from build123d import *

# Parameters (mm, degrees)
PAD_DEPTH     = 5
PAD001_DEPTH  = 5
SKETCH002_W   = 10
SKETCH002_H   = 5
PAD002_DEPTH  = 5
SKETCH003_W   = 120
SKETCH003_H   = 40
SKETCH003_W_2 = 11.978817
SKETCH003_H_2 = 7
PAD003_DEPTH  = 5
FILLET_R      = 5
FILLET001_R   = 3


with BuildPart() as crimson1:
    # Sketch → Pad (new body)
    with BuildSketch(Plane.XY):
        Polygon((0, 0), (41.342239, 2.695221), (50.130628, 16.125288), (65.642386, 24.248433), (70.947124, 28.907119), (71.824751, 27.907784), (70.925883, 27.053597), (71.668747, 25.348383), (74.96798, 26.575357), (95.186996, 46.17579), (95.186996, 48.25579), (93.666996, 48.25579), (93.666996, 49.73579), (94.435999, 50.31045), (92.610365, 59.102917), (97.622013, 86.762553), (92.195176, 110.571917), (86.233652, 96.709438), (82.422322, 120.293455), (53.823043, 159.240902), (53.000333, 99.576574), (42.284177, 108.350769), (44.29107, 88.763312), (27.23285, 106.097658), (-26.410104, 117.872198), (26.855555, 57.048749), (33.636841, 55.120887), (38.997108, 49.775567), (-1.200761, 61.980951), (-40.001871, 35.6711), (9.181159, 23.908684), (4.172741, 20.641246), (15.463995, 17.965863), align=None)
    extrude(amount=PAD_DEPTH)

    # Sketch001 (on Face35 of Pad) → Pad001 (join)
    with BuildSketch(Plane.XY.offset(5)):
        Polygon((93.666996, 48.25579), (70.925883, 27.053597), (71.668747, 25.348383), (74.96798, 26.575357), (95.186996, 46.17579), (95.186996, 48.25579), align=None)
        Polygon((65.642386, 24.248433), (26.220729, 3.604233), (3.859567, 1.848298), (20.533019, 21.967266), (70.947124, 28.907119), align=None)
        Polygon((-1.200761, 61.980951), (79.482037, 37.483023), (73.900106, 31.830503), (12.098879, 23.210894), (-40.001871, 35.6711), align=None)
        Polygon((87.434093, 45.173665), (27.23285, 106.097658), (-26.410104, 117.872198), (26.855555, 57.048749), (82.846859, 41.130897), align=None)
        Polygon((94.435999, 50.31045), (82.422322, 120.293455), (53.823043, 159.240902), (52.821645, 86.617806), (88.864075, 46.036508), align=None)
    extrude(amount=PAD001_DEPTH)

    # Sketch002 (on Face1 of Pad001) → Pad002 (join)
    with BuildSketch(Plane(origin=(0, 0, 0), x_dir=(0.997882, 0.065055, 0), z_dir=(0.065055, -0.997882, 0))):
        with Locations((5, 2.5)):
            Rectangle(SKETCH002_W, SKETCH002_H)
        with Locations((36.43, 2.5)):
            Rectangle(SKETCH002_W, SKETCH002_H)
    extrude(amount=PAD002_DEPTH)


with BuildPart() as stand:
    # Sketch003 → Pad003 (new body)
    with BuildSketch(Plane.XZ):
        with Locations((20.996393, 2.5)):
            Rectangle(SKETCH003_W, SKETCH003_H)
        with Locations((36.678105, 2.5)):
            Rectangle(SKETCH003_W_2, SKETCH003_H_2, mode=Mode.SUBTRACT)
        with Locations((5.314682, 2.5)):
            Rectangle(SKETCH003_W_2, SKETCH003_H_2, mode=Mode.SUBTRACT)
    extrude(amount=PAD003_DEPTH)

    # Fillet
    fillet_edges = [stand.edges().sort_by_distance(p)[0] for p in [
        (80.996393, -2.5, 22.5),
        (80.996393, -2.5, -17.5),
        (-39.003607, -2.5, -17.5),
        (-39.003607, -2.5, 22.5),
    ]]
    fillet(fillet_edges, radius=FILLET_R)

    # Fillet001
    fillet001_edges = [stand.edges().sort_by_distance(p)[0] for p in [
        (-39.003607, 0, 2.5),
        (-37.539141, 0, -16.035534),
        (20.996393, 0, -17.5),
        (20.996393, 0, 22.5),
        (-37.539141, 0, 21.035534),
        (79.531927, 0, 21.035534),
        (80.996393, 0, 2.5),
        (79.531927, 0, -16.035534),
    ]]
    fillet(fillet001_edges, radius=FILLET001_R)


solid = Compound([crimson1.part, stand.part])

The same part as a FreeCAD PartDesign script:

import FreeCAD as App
import Part
import Sketcher
from FreeCAD import Vector
Q = App.Units.Quantity


def edges_at(feature, points):
    """Names of the edges that pass closest to the given points."""
    edges = feature.Shape.Edges
    near = lambda p: min(range(len(edges)), key=lambda i: edges[i].distToShape(Part.Vertex(*p))[0])
    return sorted({f"Edge{near(p) + 1}" for p in points})


def add_polygon(sketch, points):
    """Adds a closed chain of lines whose ends are joined by coincident constraints."""
    first, n = sketch.GeometryCount, len(points)
    for a, b in zip(points, points[1:] + points[:1]):
        sketch.addGeometry(Part.LineSegment(App.Vector(*a, 0), App.Vector(*b, 0)), False)
    for i in range(n):
        sketch.addConstraint(Sketcher.Constraint("Coincident", first + i, 2, first + (i + 1) % n, 1))

doc = App.newDocument("Part")
params = doc.addObject("Spreadsheet::Sheet", "Params")
for row, (alias, value) in enumerate([
    ("sketch1_width", "1.52 mm"),
    ("sketch1_height", "2.08 mm"),
    ("sketch1_height2", "1.48 mm"),
    ("sketch1_length", "41.430001 mm"),
    ("sketch1_length2", "16.049999 mm"),
    ("pad1_length", "5 mm"),
    ("sketch2_length", "44.5 mm"),
    ("sketch2_width", "1.52 mm"),
    ("sketch2_height", "2.08 mm"),
    ("sketch2_length2", "1.86 mm"),
    ("sketch2_length3", "3.520001 mm"),
    ("pad2_length", "5 mm"),
    ("sketch3_width", "10 mm"),
    ("sketch3_height", "5 mm"),
    ("pad3_length", "5 mm"),
    ("sketch4_width", "120 mm"),
    ("sketch4_height", "40 mm"),
    ("sketch4_height2", "7 mm"),
    ("pad4_length", "5 mm"),
    ("fillet_radius", "5 mm"),
    ("fillet2_radius", "3 mm"),
], start=1):
    params.set(f"A{row}", alias)
    params.set(f"B{row}", "=" + value)
    params.setAlias(f"B{row}", alias)

body = doc.addObject("PartDesign::Body", "Body")

# Sketch on XY plane
sketch1 = doc.addObject("Sketcher::SketchObject", "Sketch")
body.addObject(sketch1)
sketch1.AttachmentSupport = (doc.XY_Plane, [""])
sketch1.MapMode = "FlatFace"
add_polygon(sketch1, [(0, 0), (41.3, 2.7), (50.1, 16.1), (65.6, 24.2), (70.9, 28.9), (71.8, 27.9), (70.9, 27.1), (71.7, 25.3), (75, 26.6), (95.2, 46.2), (95.2, 48.3), (93.7, 48.3), (93.7, 49.7), (94.4, 50.3), (92.6, 59.1), (97.6, 86.8), (92.2, 110.6), (86.2, 96.7), (82.4, 120.3), (53.8, 159.2), (53, 99.6), (42.3, 108.4), (44.3, 88.8), (27.2, 106.1), (-26.4, 117.9), (26.9, 57), (33.6, 55.1), (39, 49.8), (-1.2, 62), (-40, 35.7), (9.2, 23.9), (4.2, 20.6), (15.5, 18)])  # lines 0-32
sketch1.addConstraint(Sketcher.Constraint("Vertical", 9))
sketch1.addConstraint(Sketcher.Constraint("Horizontal", 10))
sketch1.addConstraint(Sketcher.Constraint("Vertical", 11))
sketch1.addConstraint(Sketcher.Constraint("Coincident", 32, 2, -1, 1))
sketch1.addConstraint(Sketcher.Constraint("Perpendicular", 3, 4))
sketch1.addConstraint(Sketcher.Constraint("Angle", 1, Q("56.800002 deg")))
sketch1.addConstraint(Sketcher.Constraint("Angle", 7, Q("20.400004 deg")))
sketch1.addConstraint(Sketcher.Constraint("DistanceX", 10, 2, 10, 1, 1.52))
sketch1.addConstraint(Sketcher.Constraint("DistanceY", 9, 1, 9, 2, 2.08))
sketch1.addConstraint(Sketcher.Constraint("DistanceY", 11, 1, 11, 2, 1.48))
sketch1.addConstraint(Sketcher.Constraint("Angle", 0, Q("3.73 deg")))
sketch1.addConstraint(Sketcher.Constraint("Angle", 2, Q("27.64 deg")))
sketch1.addConstraint(Sketcher.Constraint("Angle", 3, Q("41.29 deg")))
sketch1.addConstraint(Sketcher.Constraint("Angle", 5, Q("-136.46001 deg")))
sketch1.addConstraint(Sketcher.Constraint("Angle", 6, Q("-66.460003 deg")))
sketch1.addConstraint(Sketcher.Constraint("Angle", 8, Q("44.109999 deg")))
sketch1.addConstraint(Sketcher.Constraint("Angle", 12, Q("36.77 deg")))
sketch1.addConstraint(Sketcher.Constraint("Angle", 13, Q("101.73 deg")))
sketch1.addConstraint(Sketcher.Constraint("Angle", 14, Q("79.730001 deg")))
sketch1.addConstraint(Sketcher.Constraint("Angle", 15, Q("102.839999 deg")))
sketch1.addConstraint(Sketcher.Constraint("Angle", 16, Q("-113.27 deg")))
sketch1.addConstraint(Sketcher.Constraint("Angle", 17, Q("99.180001 deg")))
sketch1.addConstraint(Sketcher.Constraint("Angle", 18, Q("126.289999 deg")))
sketch1.addConstraint(Sketcher.Constraint("Angle", 19, Q("-90.79 deg")))
sketch1.addConstraint(Sketcher.Constraint("Angle", 20, Q("140.690003 deg")))
sketch1.addConstraint(Sketcher.Constraint("Angle", 21, Q("-84.149999 deg")))
sketch1.addConstraint(Sketcher.Constraint("Angle", 22, Q("134.540002 deg")))
sketch1.addConstraint(Sketcher.Constraint("Angle", 23, Q("167.62 deg")))
sketch1.addConstraint(Sketcher.Constraint("Angle", 24, Q("-48.79 deg")))
sketch1.addConstraint(Sketcher.Constraint("Angle", 25, Q("-15.870001 deg")))
sketch1.addConstraint(Sketcher.Constraint("Angle", 26, Q("-44.920004 deg")))
sketch1.addConstraint(Sketcher.Constraint("Angle", 27, Q("163.109999 deg")))
sketch1.addConstraint(Sketcher.Constraint("Angle", 28, Q("-145.86 deg")))
sketch1.addConstraint(Sketcher.Constraint("Angle", 29, Q("-13.45 deg")))
sketch1.addConstraint(Sketcher.Constraint("Angle", 30, Q("-146.880003 deg")))
sketch1.addConstraint(Sketcher.Constraint("Angle", 31, Q("-13.330002 deg")))
sketch1.addConstraint(Sketcher.Constraint("Angle", 32, Q("-130.720001 deg")))
sketch1.addConstraint(Sketcher.Constraint("Distance", 0, 41.430001))
sketch1.addConstraint(Sketcher.Constraint("Distance", 1, 16.049999))
sketch1.addConstraint(Sketcher.Constraint("Distance", 2, 17.510001))
sketch1.addConstraint(Sketcher.Constraint("Distance", 3, 7.06))
sketch1.addConstraint(Sketcher.Constraint("Distance", 4, 1.33))
sketch1.addConstraint(Sketcher.Constraint("Distance", 5, 1.24))
sketch1.addConstraint(Sketcher.Constraint("Distance", 6, 1.86))
sketch1.addConstraint(Sketcher.Constraint("Distance", 7, 3.520001))
sketch1.addConstraint(Sketcher.Constraint("Distance", 8, 28.16))
sketch1.addConstraint(Sketcher.Constraint("Distance", 12, 0.96))
sketch1.addConstraint(Sketcher.Constraint("Distance", 13, 8.980001))
sketch1.addConstraint(Sketcher.Constraint("Distance", 14, 28.11))
sketch1.addConstraint(Sketcher.Constraint("Distance", 15, 24.419999))
sketch1.addConstraint(Sketcher.Constraint("Distance", 16, 15.09))
sketch1.addConstraint(Sketcher.Constraint("Distance", 17, 23.89))
sketch1.addConstraint(Sketcher.Constraint("Distance", 18, 48.32))
sketch1.addConstraint(Sketcher.Constraint("Distance", 19, 59.67))
sketch1.addConstraint(Sketcher.Constraint("Distance", 20, 13.85))
sketch1.addConstraint(Sketcher.Constraint("Distance", 21, 19.69))
sketch1.addConstraint(Sketcher.Constraint("Distance", 22, 24.32))
sketch1.addConstraint(Sketcher.Constraint("Distance", 23, 54.919999))
sketch1.addConstraint(Sketcher.Constraint("Distance", 24, 80.849999))
sketch1.addConstraint(Sketcher.Constraint("Distance", 25, 7.049999))
sketch1.addConstraint(Sketcher.Constraint("Distance", 26, 7.570001))
sketch1.addConstraint(Sketcher.Constraint("Distance", 27, 42.01))
sketch1.addConstraint(Sketcher.Constraint("Distance", 28, 46.88))
sketch1.addConstraint(Sketcher.Constraint("Distance", 29, 50.57))
sketch1.addConstraint(Sketcher.Constraint("Distance", 30, 5.98))
sketch1.setExpression("Constraints[40]", "Params.sketch1_width")
sketch1.setExpression("Constraints[41]", "Params.sketch1_height")
sketch1.setExpression("Constraints[42]", "Params.sketch1_height2")
sketch1.setExpression("Constraints[70]", "Params.sketch1_length")
sketch1.setExpression("Constraints[71]", "Params.sketch1_length2")
pad1 = doc.addObject("PartDesign::Pad", "Pad")
body.addObject(pad1)
pad1.Profile = sketch1
pad1.setExpression("Length", "Params.pad1_length")

# Sketch on XY plane
sketch2 = doc.addObject("Sketcher::SketchObject", "Sketch001")
body.addObject(sketch2)
sketch2.AttachmentSupport = (doc.XY_Plane, [""])
sketch2.MapMode = "FlatFace"
sketch2.AttachmentOffset = App.Placement(Vector(0, 0, 5), App.Rotation())
add_polygon(sketch2, [(93.7, 48.3), (70.9, 27.1), (71.7, 25.3), (75, 26.6), (95.2, 46.2), (95.2, 48.3)])  # lines 0-5
add_polygon(sketch2, [(26.2, 3.6), (65.6, 24.2), (70.9, 28.9), (20.5, 22), (3.9, 1.8)])  # lines 6-10
add_polygon(sketch2, [(79.5, 37.5), (-1.2, 62), (-40, 35.7), (12.1, 23.2), (73.9, 31.8)])  # lines 11-15
add_polygon(sketch2, [(87.4, 45.2), (27.2, 106.1), (-26.4, 117.9), (26.9, 57), (82.8, 41.1)])  # lines 16-20
add_polygon(sketch2, [(94.4, 50.3), (82.4, 120.3), (53.8, 159.2), (52.8, 86.6), (88.9, 46)])  # lines 21-25
sketch2.addConstraint(Sketcher.Constraint("Vertical", 4))
sketch2.addConstraint(Sketcher.Constraint("Horizontal", 5))
sketch2.addConstraint(Sketcher.Constraint("Angle", 2, Q("20.400004 deg")))
sketch2.addConstraint(Sketcher.Constraint("Distance", 6, 44.5))
sketch2.addConstraint(Sketcher.Constraint("DistanceX", 5, 2, 5, 1, 1.52))
sketch2.addConstraint(Sketcher.Constraint("DistanceY", 4, 1, 4, 2, 2.08))
sketch2.addConstraint(Sketcher.Constraint("Angle", 1, Q("-66.460003 deg")))
sketch2.addConstraint(Sketcher.Constraint("Angle", 3, Q("44.109999 deg")))
sketch2.addConstraint(Sketcher.Constraint("Angle", 6, Q("27.64 deg")))
sketch2.addConstraint(Sketcher.Constraint("Angle", 7, Q("41.29 deg")))
sketch2.addConstraint(Sketcher.Constraint("Angle", 9, Q("-129.65 deg")))
sketch2.addConstraint(Sketcher.Constraint("Angle", 10, Q("4.490001 deg")))
sketch2.addConstraint(Sketcher.Constraint("Angle", 11, Q("163.11 deg")))
sketch2.addConstraint(Sketcher.Constraint("Angle", 12, Q("-145.86 deg")))
sketch2.addConstraint(Sketcher.Constraint("Angle", 13, Q("-13.45 deg")))
sketch2.addConstraint(Sketcher.Constraint("Angle", 14, Q("7.94 deg")))
sketch2.addConstraint(Sketcher.Constraint("Angle", 15, Q("45.36 deg")))
sketch2.addConstraint(Sketcher.Constraint("Angle", 17, Q("167.62 deg")))
sketch2.addConstraint(Sketcher.Constraint("Angle", 18, Q("-48.79 deg")))
sketch2.addConstraint(Sketcher.Constraint("Angle", 19, Q("-15.870001 deg")))
sketch2.addConstraint(Sketcher.Constraint("Angle", 20, Q("41.389999 deg")))
sketch2.addConstraint(Sketcher.Constraint("Angle", 22, Q("126.289999 deg")))
sketch2.addConstraint(Sketcher.Constraint("Angle", 23, Q("-90.79 deg")))
sketch2.addConstraint(Sketcher.Constraint("Angle", 24, Q("-48.39 deg")))
sketch2.addConstraint(Sketcher.Constraint("Angle", 25, Q("37.489995 deg")))
sketch2.addConstraint(Sketcher.Constraint("Distance", 1, 1.86))
sketch2.addConstraint(Sketcher.Constraint("Distance", 2, 3.520001))
sketch2.addConstraint(Sketcher.Constraint("Distance", 3, 28.16))
sketch2.addConstraint(Sketcher.Constraint("Distance", 7, 7.06))
sketch2.addConstraint(Sketcher.Constraint("Distance", 9, 26.13))
sketch2.addConstraint(Sketcher.Constraint("Distance", 10, 22.429999))
sketch2.addConstraint(Sketcher.Constraint("Distance", 11, 84.32))
sketch2.addConstraint(Sketcher.Constraint("Distance", 12, 46.88))
sketch2.addConstraint(Sketcher.Constraint("Distance", 13, 53.57))
sketch2.addConstraint(Sketcher.Constraint("Distance", 16, 85.65))
sketch2.addConstraint(Sketcher.Constraint("Distance", 17, 54.919999))
sketch2.addConstraint(Sketcher.Constraint("Distance", 18, 80.849999))
sketch2.addConstraint(Sketcher.Constraint("Distance", 19, 58.21))
sketch2.addConstraint(Sketcher.Constraint("Distance", 22, 48.32))
sketch2.addConstraint(Sketcher.Constraint("Distance", 23, 72.63))
sketch2.addConstraint(Sketcher.Constraint("DistanceX", -1, 1, 25, 2, 94.435999))
sketch2.addConstraint(Sketcher.Constraint("DistanceY", -1, 1, 12, 2, 35.6711))
sketch2.addConstraint(Sketcher.Constraint("DistanceY", -1, 1, 22, 2, 159.240902))
sketch2.addConstraint(Sketcher.Constraint("DistanceY", 9, 2, 0, 2, 25.205299))
sketch2.addConstraint(Sketcher.Constraint("DistanceX", 12, 2, 10, 2, 66.2226))
sketch2.addConstraint(Sketcher.Constraint("DistanceY", 12, 2, 17, 2, 82.201098))
sketch2.addConstraint(Sketcher.Constraint("DistanceX", -1, 1, 2, 2, 74.96798))
sketch2.addConstraint(Sketcher.Constraint("DistanceY", -1, 1, 3, 2, 46.17579))
sketch2.addConstraint(Sketcher.Constraint("DistanceX", -1, 1, 8, 2, 20.533019))
sketch2.addConstraint(Sketcher.Constraint("DistanceX", -1, 1, 16, 2, 27.23285))
sketch2.addConstraint(Sketcher.Constraint("DistanceX", -1, 1, 21, 2, 82.422322))
sketch2.addConstraint(Sketcher.Constraint("DistanceY", -1, 1, 25, 2, 50.31045))
sketch2.setExpression("Constraints[29]", "Params.sketch2_length")
sketch2.setExpression("Constraints[30]", "Params.sketch2_width")
sketch2.setExpression("Constraints[31]", "Params.sketch2_height")
sketch2.setExpression("Constraints[51]", "Params.sketch2_length2")
sketch2.setExpression("Constraints[52]", "Params.sketch2_length3")
pad2 = doc.addObject("PartDesign::Pad", "Pad001")
body.addObject(pad2)
pad2.Profile = sketch2
pad2.setExpression("Length", "Params.pad2_length")

# Sketch on an angled plane
sketch3 = doc.addObject("Sketcher::SketchObject", "Sketch002")
body.addObject(sketch3)
sketch3.Placement = App.Placement(Vector(0, 0, 0), App.Rotation(Vector(0.997881681, 0.065054979, 0), Vector(0, 0, 1), Vector(0.065054979, -0.997881681, 0), "ZXY"))
add_polygon(sketch3, [(0, 5), (0, 0), (10, 0), (10, 5)])  # lines 0-3
add_polygon(sketch3, [(31.4, 5), (31.4, 0), (41.4, 0), (41.4, 5)])  # lines 4-7
sketch3.addConstraint(Sketcher.Constraint("Vertical", 0))
sketch3.addConstraint(Sketcher.Constraint("Horizontal", 1))
sketch3.addConstraint(Sketcher.Constraint("Vertical", 2))
sketch3.addConstraint(Sketcher.Constraint("Horizontal", 3))
sketch3.addConstraint(Sketcher.Constraint("Vertical", 4))
sketch3.addConstraint(Sketcher.Constraint("Horizontal", 5))
sketch3.addConstraint(Sketcher.Constraint("Vertical", 6))
sketch3.addConstraint(Sketcher.Constraint("Horizontal", 7))
sketch3.addConstraint(Sketcher.Constraint("Coincident", 0, 2, -1, 1))
sketch3.addConstraint(Sketcher.Constraint("PointOnObject", 4, 2, -1))
sketch3.addConstraint(Sketcher.Constraint("Horizontal", 3, 2, 6, 2))
sketch3.addConstraint(Sketcher.Constraint("Equal", 3, 5))
sketch3.addConstraint(Sketcher.Constraint("DistanceX", 1, 1, 1, 2, 10.0))
sketch3.addConstraint(Sketcher.Constraint("DistanceY", 0, 2, 0, 1, 5.0))
sketch3.addConstraint(Sketcher.Constraint("DistanceX", -1, 1, 4, 2, 31.43))
sketch3.setExpression("Constraints[20]", "Params.sketch3_width")
sketch3.setExpression("Constraints[21]", "Params.sketch3_height")
pad3 = doc.addObject("PartDesign::Pad", "Pad002")
body.addObject(pad3)
pad3.Profile = sketch3
pad3.setExpression("Length", "Params.pad3_length")
body2 = doc.addObject("PartDesign::Body", "Body001")

# Sketch on XZ plane
sketch4 = doc.addObject("Sketcher::SketchObject", "Sketch003")
body2.addObject(sketch4)
sketch4.AttachmentSupport = (doc.getObject("XZ_Plane001"), [""])
sketch4.MapMode = "FlatFace"
add_polygon(sketch4, [(-39, 22), (-39, -18), (81, -18), (81, 22)])  # lines 0-3
add_polygon(sketch4, [(11, -1), (-1, -1), (-1, 6), (11, 6)])  # lines 4-7
add_polygon(sketch4, [(43, -1), (31, -1), (31, 6), (43, 6)])  # lines 8-11
sketch4.addConstraint(Sketcher.Constraint("Vertical", 0))
sketch4.addConstraint(Sketcher.Constraint("Horizontal", 1))
sketch4.addConstraint(Sketcher.Constraint("Vertical", 2))
sketch4.addConstraint(Sketcher.Constraint("Horizontal", 3))
sketch4.addConstraint(Sketcher.Constraint("Horizontal", 4))
sketch4.addConstraint(Sketcher.Constraint("Vertical", 5))
sketch4.addConstraint(Sketcher.Constraint("Horizontal", 6))
sketch4.addConstraint(Sketcher.Constraint("Vertical", 7))
sketch4.addConstraint(Sketcher.Constraint("Horizontal", 8))
sketch4.addConstraint(Sketcher.Constraint("Vertical", 9))
sketch4.addConstraint(Sketcher.Constraint("Horizontal", 10))
sketch4.addConstraint(Sketcher.Constraint("Vertical", 11))
sketch4.addConstraint(Sketcher.Constraint("Horizontal", 7, 2, 8, 2))
sketch4.addConstraint(Sketcher.Constraint("Horizontal", 6, 2, 9, 2))
sketch4.addConstraint(Sketcher.Constraint("Equal", 6, 8))
sketch4.addConstraint(Sketcher.Constraint("DistanceX", 1, 1, 1, 2, 120.0))
sketch4.addConstraint(Sketcher.Constraint("DistanceY", 0, 2, 0, 1, 40.0))
sketch4.addConstraint(Sketcher.Constraint("DistanceY", 5, 1, 5, 2, 7.0))
sketch4.addConstraint(Sketcher.Constraint("DistanceY", 4, 2, -1, 1, 1.0))
sketch4.addConstraint(Sketcher.Constraint("DistanceY", 0, 2, -1, 1, 17.5))
sketch4.addConstraint(Sketcher.Constraint("DistanceX", 4, 2, 4, 1, 11.978817))
sketch4.addConstraint(Sketcher.Constraint("DistanceX", -1, 1, 6, 2, 11.30409))
sketch4.addConstraint(Sketcher.Constraint("DistanceX", 0, 2, 4, 2, 38.328881))
sketch4.addConstraint(Sketcher.Constraint("DistanceX", 10, 2, 2, 2, 38.328879))
sketch4.setExpression("Constraints[27]", "Params.sketch4_width")
sketch4.setExpression("Constraints[28]", "Params.sketch4_height")
sketch4.setExpression("Constraints[29]", "Params.sketch4_height2")
pad4 = doc.addObject("PartDesign::Pad", "Pad003")
body2.addObject(pad4)
pad4.Profile = sketch4
pad4.setExpression("Length", "Params.pad4_length")
doc.recompute()

fillet = doc.addObject("PartDesign::Fillet", "Fillet")
body2.addObject(fillet)
fillet.Base = (pad4, edges_at(pad4, [
    (80.996, -2.5, 22.5),
    (80.996, -2.5, -17.5),
    (-39.004, -2.5, -17.5),
    (-39.004, -2.5, 22.5),
]))
fillet.setExpression("Radius", "Params.fillet_radius")
doc.recompute()

fillet2 = doc.addObject("PartDesign::Fillet", "Fillet001")
body2.addObject(fillet2)
fillet2.Base = (fillet, edges_at(fillet, [
    (-39.004, 0, 2.5),
    (-37.539, 0, -16.036),
    (20.996, 0, -17.5),
    (20.996, 0, 22.5),
    (-37.539, 0, 21.036),
    (79.532, 0, 21.036),
    (80.996, 0, 2.5),
    (79.532, 0, -16.036),
]))
fillet2.setExpression("Radius", "Params.fillet2_radius")

doc.recompute()
